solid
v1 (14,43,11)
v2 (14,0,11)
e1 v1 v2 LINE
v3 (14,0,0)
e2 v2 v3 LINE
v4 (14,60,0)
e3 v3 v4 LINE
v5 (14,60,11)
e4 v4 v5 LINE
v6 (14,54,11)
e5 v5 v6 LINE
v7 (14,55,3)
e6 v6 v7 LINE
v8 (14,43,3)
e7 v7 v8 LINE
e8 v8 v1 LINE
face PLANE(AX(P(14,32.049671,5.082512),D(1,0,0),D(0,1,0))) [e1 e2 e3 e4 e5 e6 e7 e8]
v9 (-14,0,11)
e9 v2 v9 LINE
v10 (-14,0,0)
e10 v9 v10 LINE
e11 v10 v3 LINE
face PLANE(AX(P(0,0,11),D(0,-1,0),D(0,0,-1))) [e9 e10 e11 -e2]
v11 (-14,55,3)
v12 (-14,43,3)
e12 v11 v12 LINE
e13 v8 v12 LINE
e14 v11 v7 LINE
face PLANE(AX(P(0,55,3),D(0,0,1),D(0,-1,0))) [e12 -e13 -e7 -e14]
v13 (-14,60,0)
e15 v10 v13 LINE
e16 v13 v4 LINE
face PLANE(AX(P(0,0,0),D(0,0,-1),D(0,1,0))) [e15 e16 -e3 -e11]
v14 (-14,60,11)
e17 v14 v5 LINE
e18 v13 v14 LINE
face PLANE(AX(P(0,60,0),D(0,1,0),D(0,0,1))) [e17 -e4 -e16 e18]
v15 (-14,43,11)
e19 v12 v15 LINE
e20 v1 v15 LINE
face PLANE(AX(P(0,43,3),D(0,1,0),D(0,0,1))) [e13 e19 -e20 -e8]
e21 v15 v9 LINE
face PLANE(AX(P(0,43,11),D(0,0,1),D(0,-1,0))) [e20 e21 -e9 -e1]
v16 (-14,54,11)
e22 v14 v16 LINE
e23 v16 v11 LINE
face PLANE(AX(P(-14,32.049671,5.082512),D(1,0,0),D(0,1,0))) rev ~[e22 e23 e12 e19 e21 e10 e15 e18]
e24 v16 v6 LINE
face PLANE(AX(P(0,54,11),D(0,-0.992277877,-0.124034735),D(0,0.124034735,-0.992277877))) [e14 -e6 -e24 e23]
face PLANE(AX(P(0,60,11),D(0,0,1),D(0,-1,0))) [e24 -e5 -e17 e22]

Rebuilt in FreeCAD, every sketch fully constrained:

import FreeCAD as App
import Part
import Sketcher

V = App.Vector
Q = App.Units.Quantity


def add_polygon(sketch, points):
    """Adds a closed chain of lines whose ends are joined by coincident constraints."""
    first, n = sketch.GeometryCount, len(points)
    for a, b in zip(points, points[1:] + points[:1]):
        sketch.addGeometry(Part.LineSegment(App.Vector(*a, 0), App.Vector(*b, 0)), False)
    for i in range(n):
        sketch.addConstraint(Sketcher.Constraint("Coincident", first + i, 2, first + (i + 1) % n, 1))

doc = App.newDocument("Part")
params = doc.addObject("Spreadsheet::Sheet", "Params")
for row, (alias, value) in enumerate([
    ("sketch1_width", "60 mm"),
    ("sketch1_width2", "6 mm"),
    ("sketch1_width3", "12 mm"),
    ("sketch1_width4", "43 mm"),
    ("sketch1_height", "11 mm"),
    ("pad1_length", "28 mm"),
], start=1):
    params.set(f"A{row}", alias)
    params.set(f"B{row}", "=" + value)
    params.setAlias(f"B{row}", alias)

body = doc.addObject("PartDesign::Body", "Body")

# Sketch on YZ plane
sketch1 = doc.addObject("Sketcher::SketchObject", "Sketch")
body.addObject(sketch1)
sketch1.AttachmentSupport = (doc.YZ_Plane, [""])
sketch1.MapMode = "FlatFace"
add_polygon(sketch1, [(0, 11), (0, 0), (60, 0), (60, 11), (54, 11), (55, 3), (43, 3), (43, 11)])  # lines 0-7
sketch1.addConstraint(Sketcher.Constraint("Vertical", 0))
sketch1.addConstraint(Sketcher.Constraint("Horizontal", 1))
sketch1.addConstraint(Sketcher.Constraint("Vertical", 2))
sketch1.addConstraint(Sketcher.Constraint("Horizontal", 3))
sketch1.addConstraint(Sketcher.Constraint("Horizontal", 5))
sketch1.addConstraint(Sketcher.Constraint("Vertical", 6))
sketch1.addConstraint(Sketcher.Constraint("Horizontal", 7))
sketch1.addConstraint(Sketcher.Constraint("Coincident", 0, 2, -1, 1))
sketch1.addConstraint(Sketcher.Constraint("Horizontal", 3, 2, 6, 2))
sketch1.addConstraint(Sketcher.Constraint("DistanceX", 1, 1, 1, 2, Q("60 mm")))
sketch1.addConstraint(Sketcher.Constraint("DistanceX", 3, 2, 3, 1, Q("6 mm")))
sketch1.addConstraint(Sketcher.Constraint("DistanceX", 5, 2, 5, 1, Q("12 mm")))
sketch1.addConstraint(Sketcher.Constraint("DistanceX", 7, 2, 7, 1, Q("43 mm")))
sketch1.addConstraint(Sketcher.Constraint("DistanceY", 0, 2, 0, 1, Q("11 mm")))
sketch1.addConstraint(Sketcher.Constraint("DistanceY", 6, 1, 6, 2, Q("8 mm")))
sketch1.setExpression("Constraints[17]", "Params.sketch1_width")
sketch1.setExpression("Constraints[18]", "Params.sketch1_width2")
sketch1.setExpression("Constraints[19]", "Params.sketch1_width3")
sketch1.setExpression("Constraints[20]", "Params.sketch1_width4")
sketch1.setExpression("Constraints[21]", "Params.sketch1_height")
pad1 = doc.addObject("PartDesign::Pad", "Pad")
body.addObject(pad1)
pad1.Profile = sketch1
pad1.setExpression("Length", "Params.pad1_length")
pad1.Midplane = True

doc.recompute()
